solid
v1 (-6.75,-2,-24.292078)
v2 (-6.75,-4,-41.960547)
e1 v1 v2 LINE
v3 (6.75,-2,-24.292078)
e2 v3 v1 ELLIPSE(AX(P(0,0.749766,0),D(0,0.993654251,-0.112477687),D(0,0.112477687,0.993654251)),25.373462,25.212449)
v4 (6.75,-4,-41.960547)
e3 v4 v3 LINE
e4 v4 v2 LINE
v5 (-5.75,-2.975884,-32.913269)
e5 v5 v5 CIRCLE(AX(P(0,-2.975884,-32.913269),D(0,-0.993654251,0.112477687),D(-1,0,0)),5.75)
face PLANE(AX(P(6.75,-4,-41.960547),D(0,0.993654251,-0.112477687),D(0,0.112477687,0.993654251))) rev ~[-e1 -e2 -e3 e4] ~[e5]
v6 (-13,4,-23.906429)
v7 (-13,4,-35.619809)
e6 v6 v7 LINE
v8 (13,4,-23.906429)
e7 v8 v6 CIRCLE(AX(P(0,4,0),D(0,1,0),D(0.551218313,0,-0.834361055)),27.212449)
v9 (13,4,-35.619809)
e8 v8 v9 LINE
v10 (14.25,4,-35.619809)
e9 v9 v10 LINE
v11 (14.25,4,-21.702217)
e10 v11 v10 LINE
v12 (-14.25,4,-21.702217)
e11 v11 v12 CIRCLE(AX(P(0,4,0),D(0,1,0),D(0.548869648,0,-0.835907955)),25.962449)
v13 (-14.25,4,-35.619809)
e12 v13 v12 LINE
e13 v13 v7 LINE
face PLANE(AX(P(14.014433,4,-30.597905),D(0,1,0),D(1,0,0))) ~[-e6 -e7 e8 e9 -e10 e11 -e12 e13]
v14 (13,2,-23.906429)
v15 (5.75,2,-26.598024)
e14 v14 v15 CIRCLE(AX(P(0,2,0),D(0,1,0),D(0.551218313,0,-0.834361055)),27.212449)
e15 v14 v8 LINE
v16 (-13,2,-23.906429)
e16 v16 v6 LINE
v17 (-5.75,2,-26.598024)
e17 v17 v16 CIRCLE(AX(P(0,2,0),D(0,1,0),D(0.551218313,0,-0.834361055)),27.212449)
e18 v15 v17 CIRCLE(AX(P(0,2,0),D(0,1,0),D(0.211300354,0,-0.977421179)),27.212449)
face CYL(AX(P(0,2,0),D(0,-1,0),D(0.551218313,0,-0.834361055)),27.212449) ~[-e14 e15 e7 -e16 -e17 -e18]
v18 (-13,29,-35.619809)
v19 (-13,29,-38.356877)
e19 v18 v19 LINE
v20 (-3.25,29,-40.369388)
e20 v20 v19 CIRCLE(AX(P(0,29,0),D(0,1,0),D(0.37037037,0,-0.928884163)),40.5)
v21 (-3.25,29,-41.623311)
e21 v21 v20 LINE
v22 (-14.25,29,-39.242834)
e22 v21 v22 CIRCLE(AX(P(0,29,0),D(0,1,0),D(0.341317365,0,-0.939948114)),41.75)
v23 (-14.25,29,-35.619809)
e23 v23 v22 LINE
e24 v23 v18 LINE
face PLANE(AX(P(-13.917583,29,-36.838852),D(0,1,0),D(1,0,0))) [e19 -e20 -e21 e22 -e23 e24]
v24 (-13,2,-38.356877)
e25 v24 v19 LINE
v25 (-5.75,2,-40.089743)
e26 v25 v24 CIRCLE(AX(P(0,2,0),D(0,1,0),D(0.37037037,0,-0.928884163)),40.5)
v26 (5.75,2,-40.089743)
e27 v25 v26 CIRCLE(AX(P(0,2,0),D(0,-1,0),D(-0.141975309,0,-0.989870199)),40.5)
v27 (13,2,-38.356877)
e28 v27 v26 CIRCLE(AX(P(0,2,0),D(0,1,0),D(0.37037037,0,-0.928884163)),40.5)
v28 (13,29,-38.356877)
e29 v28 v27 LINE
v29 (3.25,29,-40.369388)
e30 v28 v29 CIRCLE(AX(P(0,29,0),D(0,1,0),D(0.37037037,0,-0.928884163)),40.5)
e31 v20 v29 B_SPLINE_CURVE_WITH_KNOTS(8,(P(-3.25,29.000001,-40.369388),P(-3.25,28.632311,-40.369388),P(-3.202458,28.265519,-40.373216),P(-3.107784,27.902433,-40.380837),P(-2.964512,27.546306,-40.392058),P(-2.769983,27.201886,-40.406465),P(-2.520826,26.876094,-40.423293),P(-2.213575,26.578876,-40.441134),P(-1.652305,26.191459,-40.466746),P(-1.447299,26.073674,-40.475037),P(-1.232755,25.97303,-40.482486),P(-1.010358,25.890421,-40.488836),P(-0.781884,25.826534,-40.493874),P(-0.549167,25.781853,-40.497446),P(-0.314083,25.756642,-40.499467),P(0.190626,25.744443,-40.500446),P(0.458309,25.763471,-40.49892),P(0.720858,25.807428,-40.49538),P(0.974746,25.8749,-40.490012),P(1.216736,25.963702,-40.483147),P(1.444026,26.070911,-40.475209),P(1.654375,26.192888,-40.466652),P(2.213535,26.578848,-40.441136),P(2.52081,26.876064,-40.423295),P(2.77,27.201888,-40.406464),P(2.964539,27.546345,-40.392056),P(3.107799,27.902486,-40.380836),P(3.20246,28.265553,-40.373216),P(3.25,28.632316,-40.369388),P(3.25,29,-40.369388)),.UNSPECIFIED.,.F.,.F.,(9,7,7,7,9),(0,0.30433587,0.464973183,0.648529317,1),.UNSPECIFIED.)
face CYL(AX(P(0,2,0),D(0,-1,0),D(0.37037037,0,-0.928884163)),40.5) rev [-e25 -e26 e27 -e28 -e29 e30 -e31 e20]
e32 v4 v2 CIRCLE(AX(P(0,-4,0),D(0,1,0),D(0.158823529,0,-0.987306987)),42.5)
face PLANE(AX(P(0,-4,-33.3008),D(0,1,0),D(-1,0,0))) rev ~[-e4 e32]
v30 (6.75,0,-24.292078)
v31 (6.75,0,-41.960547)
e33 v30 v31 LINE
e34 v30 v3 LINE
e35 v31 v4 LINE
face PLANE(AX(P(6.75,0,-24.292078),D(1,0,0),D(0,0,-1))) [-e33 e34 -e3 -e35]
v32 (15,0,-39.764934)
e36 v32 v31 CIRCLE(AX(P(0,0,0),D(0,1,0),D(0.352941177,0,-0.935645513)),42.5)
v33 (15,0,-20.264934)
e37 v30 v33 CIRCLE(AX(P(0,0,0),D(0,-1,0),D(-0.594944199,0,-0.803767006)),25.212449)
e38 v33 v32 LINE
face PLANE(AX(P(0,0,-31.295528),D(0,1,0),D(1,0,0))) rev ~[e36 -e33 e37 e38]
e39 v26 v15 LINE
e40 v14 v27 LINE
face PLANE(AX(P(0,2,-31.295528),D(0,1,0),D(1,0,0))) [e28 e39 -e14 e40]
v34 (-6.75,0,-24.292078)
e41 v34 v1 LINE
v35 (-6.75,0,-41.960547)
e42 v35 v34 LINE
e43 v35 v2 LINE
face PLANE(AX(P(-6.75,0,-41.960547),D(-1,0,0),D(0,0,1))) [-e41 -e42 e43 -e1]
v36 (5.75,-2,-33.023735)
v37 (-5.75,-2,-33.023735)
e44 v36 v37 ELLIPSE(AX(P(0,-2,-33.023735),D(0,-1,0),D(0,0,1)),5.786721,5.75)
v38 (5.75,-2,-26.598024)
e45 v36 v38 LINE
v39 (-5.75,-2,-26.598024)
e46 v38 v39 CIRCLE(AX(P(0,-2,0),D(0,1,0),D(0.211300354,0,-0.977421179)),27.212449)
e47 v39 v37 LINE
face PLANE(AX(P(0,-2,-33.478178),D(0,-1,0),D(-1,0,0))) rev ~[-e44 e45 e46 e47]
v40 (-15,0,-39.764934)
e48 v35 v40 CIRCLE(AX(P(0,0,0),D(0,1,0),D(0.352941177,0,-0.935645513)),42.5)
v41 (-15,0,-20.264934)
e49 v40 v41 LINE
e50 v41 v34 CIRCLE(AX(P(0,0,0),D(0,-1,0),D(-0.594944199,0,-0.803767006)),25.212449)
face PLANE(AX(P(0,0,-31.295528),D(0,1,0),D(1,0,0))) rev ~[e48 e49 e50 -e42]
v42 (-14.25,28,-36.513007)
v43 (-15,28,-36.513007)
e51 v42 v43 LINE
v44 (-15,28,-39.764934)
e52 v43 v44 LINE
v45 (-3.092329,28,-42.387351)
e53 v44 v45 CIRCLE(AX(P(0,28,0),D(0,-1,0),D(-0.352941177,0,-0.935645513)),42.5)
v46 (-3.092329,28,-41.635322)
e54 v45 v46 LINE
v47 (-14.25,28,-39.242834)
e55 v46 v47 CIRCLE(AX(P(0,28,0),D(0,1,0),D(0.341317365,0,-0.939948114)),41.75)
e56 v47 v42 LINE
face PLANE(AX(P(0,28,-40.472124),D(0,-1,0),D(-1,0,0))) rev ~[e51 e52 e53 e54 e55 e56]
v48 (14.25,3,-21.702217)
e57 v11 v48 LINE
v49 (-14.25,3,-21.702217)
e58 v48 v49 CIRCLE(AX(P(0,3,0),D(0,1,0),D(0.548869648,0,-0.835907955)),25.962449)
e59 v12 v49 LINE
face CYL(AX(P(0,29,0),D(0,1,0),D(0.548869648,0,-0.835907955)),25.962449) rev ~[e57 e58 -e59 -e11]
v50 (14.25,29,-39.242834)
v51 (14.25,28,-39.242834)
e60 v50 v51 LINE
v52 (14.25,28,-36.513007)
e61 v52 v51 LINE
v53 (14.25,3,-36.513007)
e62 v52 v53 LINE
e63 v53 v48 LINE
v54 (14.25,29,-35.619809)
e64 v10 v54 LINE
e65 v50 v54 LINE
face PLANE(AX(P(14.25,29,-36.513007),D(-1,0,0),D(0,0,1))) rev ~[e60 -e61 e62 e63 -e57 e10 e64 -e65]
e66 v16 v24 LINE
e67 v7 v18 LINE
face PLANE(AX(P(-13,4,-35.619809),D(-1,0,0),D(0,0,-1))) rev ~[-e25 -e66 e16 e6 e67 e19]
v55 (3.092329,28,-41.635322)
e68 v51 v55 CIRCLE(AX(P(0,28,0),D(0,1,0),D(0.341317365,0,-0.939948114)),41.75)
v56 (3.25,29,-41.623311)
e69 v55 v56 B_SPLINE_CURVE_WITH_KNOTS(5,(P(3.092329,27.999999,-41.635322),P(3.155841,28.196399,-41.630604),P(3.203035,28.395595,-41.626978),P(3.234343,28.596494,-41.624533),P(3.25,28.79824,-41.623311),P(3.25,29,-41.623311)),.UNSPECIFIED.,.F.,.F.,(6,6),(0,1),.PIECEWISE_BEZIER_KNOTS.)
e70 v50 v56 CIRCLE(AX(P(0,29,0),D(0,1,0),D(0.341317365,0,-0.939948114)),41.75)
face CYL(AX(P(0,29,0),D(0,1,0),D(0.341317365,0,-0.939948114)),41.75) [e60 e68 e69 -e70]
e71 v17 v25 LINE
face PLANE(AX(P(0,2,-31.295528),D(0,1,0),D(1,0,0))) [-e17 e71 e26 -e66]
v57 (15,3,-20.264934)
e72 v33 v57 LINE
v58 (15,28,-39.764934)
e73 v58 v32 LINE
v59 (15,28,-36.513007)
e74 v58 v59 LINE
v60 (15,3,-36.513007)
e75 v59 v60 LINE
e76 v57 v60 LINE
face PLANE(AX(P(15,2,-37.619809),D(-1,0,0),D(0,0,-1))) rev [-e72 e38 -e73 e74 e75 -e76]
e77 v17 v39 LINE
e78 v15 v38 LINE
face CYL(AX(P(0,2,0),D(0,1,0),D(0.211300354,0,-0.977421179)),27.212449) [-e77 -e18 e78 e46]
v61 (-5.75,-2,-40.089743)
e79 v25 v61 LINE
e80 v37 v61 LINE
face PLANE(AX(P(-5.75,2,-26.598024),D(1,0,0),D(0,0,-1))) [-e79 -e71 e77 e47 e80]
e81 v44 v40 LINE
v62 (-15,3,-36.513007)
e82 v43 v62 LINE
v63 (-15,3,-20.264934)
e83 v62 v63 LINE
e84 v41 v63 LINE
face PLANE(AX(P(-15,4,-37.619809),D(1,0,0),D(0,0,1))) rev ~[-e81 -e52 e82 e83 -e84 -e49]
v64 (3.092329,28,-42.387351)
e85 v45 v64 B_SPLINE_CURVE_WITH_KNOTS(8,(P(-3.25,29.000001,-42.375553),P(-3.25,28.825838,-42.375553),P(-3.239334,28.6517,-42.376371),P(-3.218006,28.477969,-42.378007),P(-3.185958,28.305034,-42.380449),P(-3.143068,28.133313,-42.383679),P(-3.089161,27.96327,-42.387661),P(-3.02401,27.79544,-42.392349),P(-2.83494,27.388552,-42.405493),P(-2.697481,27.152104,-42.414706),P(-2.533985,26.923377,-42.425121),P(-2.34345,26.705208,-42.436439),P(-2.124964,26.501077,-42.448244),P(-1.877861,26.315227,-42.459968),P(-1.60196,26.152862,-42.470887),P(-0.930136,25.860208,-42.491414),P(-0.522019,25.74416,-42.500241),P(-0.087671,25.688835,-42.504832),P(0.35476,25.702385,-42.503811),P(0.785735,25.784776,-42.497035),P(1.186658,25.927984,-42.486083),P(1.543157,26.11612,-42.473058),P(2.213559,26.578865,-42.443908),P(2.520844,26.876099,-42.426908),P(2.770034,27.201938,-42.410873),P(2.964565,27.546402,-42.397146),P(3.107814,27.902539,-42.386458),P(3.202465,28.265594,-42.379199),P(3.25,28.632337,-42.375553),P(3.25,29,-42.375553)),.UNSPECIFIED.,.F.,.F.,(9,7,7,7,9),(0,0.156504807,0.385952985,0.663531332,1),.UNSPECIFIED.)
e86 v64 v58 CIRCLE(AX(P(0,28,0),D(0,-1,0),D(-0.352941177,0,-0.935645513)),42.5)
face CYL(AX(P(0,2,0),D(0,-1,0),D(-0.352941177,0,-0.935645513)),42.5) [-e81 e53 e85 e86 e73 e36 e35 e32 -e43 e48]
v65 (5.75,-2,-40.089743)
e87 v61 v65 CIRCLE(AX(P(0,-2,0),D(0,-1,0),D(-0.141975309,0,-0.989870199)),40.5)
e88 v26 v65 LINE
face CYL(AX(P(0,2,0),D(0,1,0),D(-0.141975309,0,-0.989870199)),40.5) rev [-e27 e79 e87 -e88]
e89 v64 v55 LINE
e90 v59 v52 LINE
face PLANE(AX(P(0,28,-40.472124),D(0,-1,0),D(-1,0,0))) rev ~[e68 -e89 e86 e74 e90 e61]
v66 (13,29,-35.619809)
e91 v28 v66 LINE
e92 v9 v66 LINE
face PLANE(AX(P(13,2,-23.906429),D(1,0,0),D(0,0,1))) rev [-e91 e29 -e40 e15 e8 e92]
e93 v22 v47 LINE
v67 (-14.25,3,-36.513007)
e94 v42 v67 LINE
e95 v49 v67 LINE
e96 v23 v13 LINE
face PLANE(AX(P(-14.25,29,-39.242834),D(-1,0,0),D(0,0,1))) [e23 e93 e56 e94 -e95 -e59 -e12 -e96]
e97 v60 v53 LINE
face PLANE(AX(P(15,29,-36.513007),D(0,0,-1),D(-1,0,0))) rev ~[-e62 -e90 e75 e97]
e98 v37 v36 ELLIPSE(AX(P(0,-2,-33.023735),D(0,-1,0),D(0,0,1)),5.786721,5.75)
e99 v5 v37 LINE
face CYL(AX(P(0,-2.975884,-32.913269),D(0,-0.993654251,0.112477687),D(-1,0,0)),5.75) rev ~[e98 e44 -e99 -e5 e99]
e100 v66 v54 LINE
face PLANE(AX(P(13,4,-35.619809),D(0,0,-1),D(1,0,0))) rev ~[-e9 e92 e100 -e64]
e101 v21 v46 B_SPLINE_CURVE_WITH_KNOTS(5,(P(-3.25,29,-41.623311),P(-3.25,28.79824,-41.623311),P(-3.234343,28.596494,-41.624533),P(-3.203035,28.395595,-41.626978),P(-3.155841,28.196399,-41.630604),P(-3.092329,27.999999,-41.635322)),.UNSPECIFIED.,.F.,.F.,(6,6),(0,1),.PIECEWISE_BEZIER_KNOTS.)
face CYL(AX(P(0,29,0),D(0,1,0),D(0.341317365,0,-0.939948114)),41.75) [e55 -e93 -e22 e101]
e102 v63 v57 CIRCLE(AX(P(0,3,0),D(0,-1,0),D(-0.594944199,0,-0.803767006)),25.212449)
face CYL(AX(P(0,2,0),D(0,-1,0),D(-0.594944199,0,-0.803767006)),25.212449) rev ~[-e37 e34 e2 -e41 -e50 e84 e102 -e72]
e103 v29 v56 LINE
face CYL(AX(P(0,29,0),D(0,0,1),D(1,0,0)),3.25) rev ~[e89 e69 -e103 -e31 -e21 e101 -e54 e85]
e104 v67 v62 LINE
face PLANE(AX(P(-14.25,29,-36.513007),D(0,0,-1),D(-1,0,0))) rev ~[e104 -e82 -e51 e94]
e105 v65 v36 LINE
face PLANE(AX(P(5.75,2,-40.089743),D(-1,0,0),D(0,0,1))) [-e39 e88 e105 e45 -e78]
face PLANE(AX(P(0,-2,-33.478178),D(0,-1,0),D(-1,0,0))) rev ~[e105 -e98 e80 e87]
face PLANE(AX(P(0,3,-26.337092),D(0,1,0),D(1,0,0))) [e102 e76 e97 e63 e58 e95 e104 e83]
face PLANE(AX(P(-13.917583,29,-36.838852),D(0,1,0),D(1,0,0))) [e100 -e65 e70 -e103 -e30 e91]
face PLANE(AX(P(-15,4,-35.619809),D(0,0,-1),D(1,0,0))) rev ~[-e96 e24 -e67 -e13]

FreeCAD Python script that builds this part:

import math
import FreeCAD as App
import Part
import Sketcher

V = App.Vector

doc = App.newDocument("Part")
body = doc.addObject("PartDesign::Body", "Body")

# Sketch on XZ plane
sketch1 = body.newObject("Sketcher::SketchObject", "Sketch")
sketch1.AttachmentSupport = (doc.getObject("XZ_Plane"), [""])
sketch1.MapMode = "FlatFace"
sketch1.addGeometry(Part.LineSegment(V(-15, -40, 0), V(-15, -20, 0)), False)
sketch1.addGeometry(Part.ArcOfCircle(Part.Circle(V(0, 0, 0), V(0, 0, 1), 25), math.radians(-127), math.radians(-53)), False)
sketch1.addGeometry(Part.LineSegment(V(15, -20, 0), V(15, -40, 0)), False)
sketch1.addGeometry(Part.ArcOfCircle(Part.Circle(V(0, 0, 0), V(0, 0, 1), 42), math.radians(-111), math.radians(-69)), False)
sketch1.addConstraint(Sketcher.Constraint("Coincident", 0, 2, 1, 1))
sketch1.addConstraint(Sketcher.Constraint("Coincident", 1, 2, 2, 1))
sketch1.addConstraint(Sketcher.Constraint("Coincident", 2, 2, 3, 2))
sketch1.addConstraint(Sketcher.Constraint("Coincident", 3, 1, 0, 1))
sketch1.addConstraint(Sketcher.Constraint("Vertical", 0))
sketch1.addConstraint(Sketcher.Constraint("Vertical", 2))
sketch1.addConstraint(Sketcher.Constraint("Coincident", 1, 3, -1, 1))
sketch1.addConstraint(Sketcher.Constraint("Coincident", 3, 3, -1, 1))
sketch1.addConstraint(Sketcher.Constraint("Horizontal", 0, 2, 1, 2))
sketch1.addConstraint(Sketcher.Constraint("Radius", 3, 42.5))
sketch1.addConstraint(Sketcher.Constraint("DistanceY", 0, 1, 0, 2, 19.5))
sketch1.addConstraint(Sketcher.Constraint("DistanceX", 0, 2, -1, 1, 15.0))
pad1 = body.newObject("PartDesign::Pad", "Pad")
pad1.Profile = sketch1
pad1.Length = 2
pad1.Reversed = True

# Sketch on XZ plane
sketch2 = body.newObject("Sketcher::SketchObject", "Sketch001")
sketch2.AttachmentSupport = (doc.getObject("XZ_Plane"), [""])
sketch2.MapMode = "FlatFace"
sketch2.addGeometry(Part.LineSegment(V(7, -42, 0), V(7, -24, 0)), False)
sketch2.addGeometry(Part.ArcOfCircle(Part.Circle(V(0, 0, 0), V(0, 0, 1), 25), math.radians(-106), math.radians(-74)), False)
sketch2.addGeometry(Part.LineSegment(V(-7, -24, 0), V(-7, -42, 0)), False)
sketch2.addGeometry(Part.ArcOfCircle(Part.Circle(V(0, 0, 0), V(0, 0, 1), 43), math.radians(-99.14), math.radians(-80.86)), False)
sketch2.addConstraint(Sketcher.Constraint("Coincident", 0, 2, 1, 2))
sketch2.addConstraint(Sketcher.Constraint("Coincident", 1, 1, 2, 1))
sketch2.addConstraint(Sketcher.Constraint("Coincident", 2, 2, 3, 1))
sketch2.addConstraint(Sketcher.Constraint("Coincident", 3, 2, 0, 1))
sketch2.addConstraint(Sketcher.Constraint("Vertical", 0))
sketch2.addConstraint(Sketcher.Constraint("Vertical", 2))
sketch2.addConstraint(Sketcher.Constraint("Coincident", 1, 3, -1, 1))
sketch2.addConstraint(Sketcher.Constraint("Coincident", 3, 3, -1, 1))
sketch2.addConstraint(Sketcher.Constraint("Horizontal", 0, 2, 1, 1))
sketch2.addConstraint(Sketcher.Constraint("Radius", 3, 42.5))
sketch2.addConstraint(Sketcher.Constraint("DistanceX", 1, 1, 0, 2, 13.5))
sketch2.addConstraint(Sketcher.Constraint("Radius", 1, 25.212449))
pad2 = body.newObject("PartDesign::Pad", "Pad001")
pad2.Profile = sketch2
pad2.Length = 4

# Sketch on YZ plane
sketch3 = body.newObject("Sketcher::SketchObject", "Sketch002")
sketch3.AttachmentSupport = (doc.getObject("YZ_Plane"), [""])
sketch3.MapMode = "FlatFace"
sketch3.AttachmentOffset = App.Placement(V(0, 0, 6.75), App.Rotation())
sketch3.addGeometry(Part.LineSegment(V(-4, -42, 0), V(-2, -24.3, 0)), False)
sketch3.addGeometry(Part.LineSegment(V(-2, -24.3, 0), V(-4, -24.3, 0)), False)
sketch3.addGeometry(Part.LineSegment(V(-4, -24.3, 0), V(-4, -42, 0)), False)
sketch3.addConstraint(Sketcher.Constraint("Coincident", 0, 2, 1, 1))
sketch3.addConstraint(Sketcher.Constraint("Coincident", 1, 2, 2, 1))
sketch3.addConstraint(Sketcher.Constraint("Coincident", 2, 2, 0, 1))
sketch3.addConstraint(Sketcher.Constraint("Horizontal", 1))
sketch3.addConstraint(Sketcher.Constraint("Vertical", 2))
sketch3.addConstraint(Sketcher.Constraint("DistanceX", 1, 2, 1, 1, 2.0))
sketch3.addConstraint(Sketcher.Constraint("DistanceX", 0, 2, -1, 1, 2.0))
sketch3.addConstraint(Sketcher.Constraint("DistanceY", 2, 2, 2, 1, 17.668469))
sketch3.addConstraint(Sketcher.Constraint("DistanceY", 0, 2, -1, 1, 24.292078))
pocket1 = body.newObject("PartDesign::Pocket", "Pocket")
pocket1.Profile = sketch3
pocket1.Type = "ThroughAll"

# Sketch on an angled plane
sketch4 = body.newObject("Sketcher::SketchObject", "Sketch003")
sketch4.Placement = App.Placement(V(0, 0.740281, -0.083797), App.Rotation(V(-1, 0, 0), V(0, -0.112477687, -0.993654251), V(0, -0.993654251, 0.112477687), "ZXY"))
sketch4.addGeometry(Part.Circle(V(0, 33, 0), V(0, 0, 1), 6), False)
sketch4.addConstraint(Sketcher.Constraint("PointOnObject", 0, 3, -2))
sketch4.addConstraint(Sketcher.Constraint("Diameter", 0, 11.5))
sketch4.addConstraint(Sketcher.Constraint("DistanceY", -1, 1, 0, 3, 33.03913))
pocket2 = body.newObject("PartDesign::Pocket", "Pocket001")
pocket2.Profile = sketch4
pocket2.Length = 2

# Sketch on XZ plane
sketch5 = body.newObject("Sketcher::SketchObject", "Sketch004")
sketch5.AttachmentSupport = (doc.getObject("XZ_Plane"), [""])
sketch5.MapMode = "FlatFace"
sketch5.AttachmentOffset = App.Placement(V(0, 0, -2), App.Rotation())
sketch5.addGeometry(Part.ArcOfCircle(Part.Circle(V(0, 0, 0), V(0, 0, 1), 40), math.radians(-98.16), math.radians(-81.84)), False)
sketch5.addGeometry(Part.LineSegment(V(-6, -40, 0), V(-6, -27, 0)), False)
sketch5.addGeometry(Part.ArcOfCircle(Part.Circle(V(0, 0, 0), V(0, 0, 1), 27), math.radians(-102), math.radians(-78)), False)
sketch5.addGeometry(Part.LineSegment(V(6, -27, 0), V(6, -40, 0)), False)
sketch5.addConstraint(Sketcher.Constraint("Coincident", 0, 1, 1, 1))
sketch5.addConstraint(Sketcher.Constraint("Coincident", 1, 2, 2, 1))
sketch5.addConstraint(Sketcher.Constraint("Coincident", 2, 2, 3, 1))
sketch5.addConstraint(Sketcher.Constraint("Coincident", 3, 2, 0, 2))
sketch5.addConstraint(Sketcher.Constraint("Vertical", 1))
sketch5.addConstraint(Sketcher.Constraint("Vertical", 3))
sketch5.addConstraint(Sketcher.Constraint("Coincident", 0, 3, -1, 1))
sketch5.addConstraint(Sketcher.Constraint("Coincident", 2, 3, -1, 1))
sketch5.addConstraint(Sketcher.Constraint("Horizontal", 1, 2, 2, 2))
sketch5.addConstraint(Sketcher.Constraint("Radius", 0, 40.5))
sketch5.addConstraint(Sketcher.Constraint("DistanceX", 1, 2, 2, 2, 11.5))
sketch5.addConstraint(Sketcher.Constraint("Radius", 2, 27.212449))
pocket3 = body.newObject("PartDesign::Pocket", "Pocket002")
pocket3.Profile = sketch5
pocket3.Length = 4
pocket3.Reversed = True

# Sketch on XZ plane
sketch6 = body.newObject("Sketcher::SketchObject", "Sketch005")
sketch6.AttachmentSupport = (doc.getObject("XZ_Plane"), [""])
sketch6.MapMode = "FlatFace"
sketch6.AttachmentOffset = App.Placement(V(0, 0, -2), App.Rotation())
sketch6.addGeometry(Part.LineSegment(V(-15, -39.8, 0), V(-15, -37.6, 0)), False)
sketch6.addGeometry(Part.ArcOfCircle(Part.Circle(V(0, 0, 0), V(0, 0, 1), 40.5), math.radians(-112), math.radians(-68)), False)
sketch6.addGeometry(Part.LineSegment(V(15, -37.6, 0), V(15, -39.8, 0)), False)
sketch6.addGeometry(Part.ArcOfCircle(Part.Circle(V(0, 0, 0), V(0, 0, 1), 42.5), math.radians(-111), math.radians(-69)), False)
sketch6.addConstraint(Sketcher.Constraint("Coincident", 0, 2, 1, 1))
sketch6.addConstraint(Sketcher.Constraint("Coincident", 1, 2, 2, 1))
sketch6.addConstraint(Sketcher.Constraint("Coincident", 2, 2, 3, 2))
sketch6.addConstraint(Sketcher.Constraint("Coincident", 3, 1, 0, 1))
sketch6.addConstraint(Sketcher.Constraint("Vertical", 0))
sketch6.addConstraint(Sketcher.Constraint("Vertical", 2))
sketch6.addConstraint(Sketcher.Constraint("Coincident", 1, 3, -1, 1))
sketch6.addConstraint(Sketcher.Constraint("Coincident", 3, 3, -1, 1))
sketch6.addConstraint(Sketcher.Constraint("Horizontal", 0, 2, 1, 2))
sketch6.addConstraint(Sketcher.Constraint("Radius", 1, 40.5))
sketch6.addConstraint(Sketcher.Constraint("Radius", 3, 42.5))
sketch6.addConstraint(Sketcher.Constraint("DistanceX", 0, 2, -1, 1, 15.0))
pad3 = body.newObject("PartDesign::Pad", "Pad002")
pad3.Profile = sketch6
pad3.Length = 27
pad3.Reversed = True

# Sketch on XZ plane
sketch7 = body.newObject("Sketcher::SketchObject", "Sketch006")
sketch7.AttachmentSupport = (doc.getObject("XZ_Plane"), [""])
sketch7.MapMode = "FlatFace"
sketch7.AttachmentOffset = App.Placement(V(0, 0, -2), App.Rotation())
sketch7.addGeometry(Part.LineSegment(V(-15, -22.7, 0), V(-15, -20.3, 0)), False)
sketch7.addGeometry(Part.ArcOfCircle(Part.Circle(V(0, 0, 0), V(0, 0, 1), 25.2), math.radians(-127), math.radians(-53)), False)
sketch7.addGeometry(Part.LineSegment(V(15, -20.3, 0), V(15, -22.7, 0)), False)
sketch7.addGeometry(Part.ArcOfCircle(Part.Circle(V(0, 0, 0), V(0, 0, 1), 27.2), math.radians(-123), math.radians(-57)), False)
sketch7.addConstraint(Sketcher.Constraint("Coincident", 0, 2, 1, 1))
sketch7.addConstraint(Sketcher.Constraint("Coincident", 1, 2, 2, 1))
sketch7.addConstraint(Sketcher.Constraint("Coincident", 2, 2, 3, 2))
sketch7.addConstraint(Sketcher.Constraint("Coincident", 3, 1, 0, 1))
sketch7.addConstraint(Sketcher.Constraint("Vertical", 0))
sketch7.addConstraint(Sketcher.Constraint("Vertical", 2))
sketch7.addConstraint(Sketcher.Constraint("Coincident", 1, 3, -1, 1))
sketch7.addConstraint(Sketcher.Constraint("Coincident", 3, 3, -1, 1))
sketch7.addConstraint(Sketcher.Constraint("Horizontal", 0, 2, 1, 2))
sketch7.addConstraint(Sketcher.Constraint("DistanceX", 0, 2, -1, 1, 15.0))
sketch7.addConstraint(Sketcher.Constraint("Radius", 1, 25.212449))
sketch7.addConstraint(Sketcher.Constraint("Radius", 3, 27.212449))
pad4 = body.newObject("PartDesign::Pad", "Pad003")
pad4.Profile = sketch7
pad4.Length = 2
pad4.Reversed = True

# Sketch on XZ plane
sketch8 = body.newObject("Sketcher::SketchObject", "Sketch007")
sketch8.AttachmentSupport = (doc.getObject("XZ_Plane"), [""])
sketch8.MapMode = "FlatFace"
sketch8.AttachmentOffset = App.Placement(V(0, 0, -2), App.Rotation())
sketch8.addGeometry(Part.LineSegment(V(-15, -37.6, 0), V(-15, -22.7, 0)), False)
sketch8.addGeometry(Part.ArcOfCircle(Part.Circle(V(0, 0, 0), V(0, 0, 1), 27.2), math.radians(-123.45), math.radians(-118.54)), False)
sketch8.addGeometry(Part.LineSegment(V(-13, -23.9, 0), V(-13, -38.4, 0)), False)
sketch8.addGeometry(Part.ArcOfCircle(Part.Circle(V(0, 0, 0), V(0, 0, 1), 40.5), math.radians(-111.74), math.radians(-108.72)), False)
sketch8.addConstraint(Sketcher.Constraint("Coincident", 0, 2, 1, 1))
sketch8.addConstraint(Sketcher.Constraint("Coincident", 1, 2, 2, 1))
sketch8.addConstraint(Sketcher.Constraint("Coincident", 2, 2, 3, 2))
sketch8.addConstraint(Sketcher.Constraint("Coincident", 3, 1, 0, 1))
sketch8.addConstraint(Sketcher.Constraint("Vertical", 0))
sketch8.addConstraint(Sketcher.Constraint("Vertical", 2))
sketch8.addConstraint(Sketcher.Constraint("Coincident", 1, 3, -1, 1))
sketch8.addConstraint(Sketcher.Constraint("Coincident", 3, 3, -1, 1))
sketch8.addConstraint(Sketcher.Constraint("Radius", 3, 40.5))
sketch8.addConstraint(Sketcher.Constraint("DistanceX", 0, 2, -1, 1, 15.0))
sketch8.addConstraint(Sketcher.Constraint("DistanceX", 1, 2, -1, 1, 13.0))
sketch8.addConstraint(Sketcher.Constraint("Radius", 1, 27.212448))
pad5 = body.newObject("PartDesign::Pad", "Pad004")
pad5.Profile = sketch8
pad5.Length = 2
pad5.Reversed = True
doc.recompute()

mirrored = body.newObject("PartDesign::Mirrored", "Mirrored")
mirrored.Originals = [pad5]
mirrored.MirrorPlane = (doc.getObject("YZ_Plane"), [""])
body.Tip = mirrored

# Sketch on XZ plane
sketch9 = body.newObject("Sketcher::SketchObject", "Sketch008")
sketch9.AttachmentSupport = (doc.getObject("XZ_Plane"), [""])
sketch9.MapMode = "FlatFace"
sketch9.AttachmentOffset = App.Placement(V(0, 0, -4), App.Rotation())
sketch9.addGeometry(Part.ArcOfCircle(Part.Circle(V(0, 0, 0), V(0, 0, 1), 40.5), math.radians(-111.74), math.radians(-108.72)), False)
sketch9.addGeometry(Part.LineSegment(V(-15, -37.6, 0), V(-15, -35.6, 0)), False)
sketch9.addGeometry(Part.LineSegment(V(-15, -35.6, 0), V(-13, -35.6, 0)), False)
sketch9.addGeometry(Part.LineSegment(V(-13, -35.6, 0), V(-13, -38.4, 0)), False)
sketch9.addGeometry(Part.LineSegment(V(15, -35.6, 0), V(15, -37.6, 0)), False)
sketch9.addGeometry(Part.ArcOfCircle(Part.Circle(V(0, 0, 0), V(0, 0, 1), 40.5), math.radians(-71.28), math.radians(-68.26)), False)
sketch9.addGeometry(Part.LineSegment(V(13, -38.4, 0), V(13, -35.6, 0)), False)
sketch9.addGeometry(Part.LineSegment(V(13, -35.6, 0), V(15, -35.6, 0)), False)
sketch9.addConstraint(Sketcher.Constraint("Coincident", 0, 1, 1, 1))
sketch9.addConstraint(Sketcher.Constraint("Coincident", 1, 2, 2, 1))
sketch9.addConstraint(Sketcher.Constraint("Coincident", 2, 2, 3, 1))
sketch9.addConstraint(Sketcher.Constraint("Coincident", 3, 2, 0, 2))
sketch9.addConstraint(Sketcher.Constraint("Coincident", 4, 2, 5, 2))
sketch9.addConstraint(Sketcher.Constraint("Coincident", 5, 1, 6, 1))
sketch9.addConstraint(Sketcher.Constraint("Coincident", 6, 2, 7, 1))
sketch9.addConstraint(Sketcher.Constraint("Coincident", 7, 2, 4, 1))
sketch9.addConstraint(Sketcher.Constraint("Vertical", 1))
sketch9.addConstraint(Sketcher.Constraint("Horizontal", 2))
sketch9.addConstraint(Sketcher.Constraint("Vertical", 3))
sketch9.addConstraint(Sketcher.Constraint("Vertical", 4))
sketch9.addConstraint(Sketcher.Constraint("Vertical", 6))
sketch9.addConstraint(Sketcher.Constraint("Horizontal", 7))
sketch9.addConstraint(Sketcher.Constraint("Coincident", 0, 3, -1, 1))
sketch9.addConstraint(Sketcher.Constraint("Coincident", 5, 3, -1, 1))
sketch9.addConstraint(Sketcher.Constraint("Equal", 0, 5))
sketch9.addConstraint(Sketcher.Constraint("Symmetric", 2, 2, 6, 2, -2))
sketch9.addConstraint(Sketcher.Constraint("Horizontal", 0, 1, 4, 2))
sketch9.addConstraint(Sketcher.Constraint("Equal", 7, 1))
sketch9.addConstraint(Sketcher.Constraint("Radius", 0, 40.5))
sketch9.addConstraint(Sketcher.Constraint("DistanceX", 2, 1, 2, 2, 2.0))
sketch9.addConstraint(Sketcher.Constraint("DistanceX", 0, 1, -1, 1, 15.0))
pad6 = body.newObject("PartDesign::Pad", "Pad005")
pad6.Profile = sketch9
pad6.Length = 25
pad6.Reversed = True

# Sketch on XZ plane
sketch10 = body.newObject("Sketcher::SketchObject", "Sketch009")
sketch10.AttachmentSupport = (doc.getObject("XZ_Plane"), [""])
sketch10.MapMode = "FlatFace"
sketch10.AttachmentOffset = App.Placement(V(0, 0, -29), App.Rotation())
sketch10.addGeometry(Part.LineSegment(V(-14.2, -21.7, 0), V(-14.2, -36.5, 0)), False)
sketch10.addGeometry(Part.LineSegment(V(-14.2, -36.5, 0), V(-15, -36.5, 0)), False)
sketch10.addGeometry(Part.LineSegment(V(-15, -36.5, 0), V(-15, -20.3, 0)), False)
sketch10.addGeometry(Part.ArcOfCircle(Part.Circle(V(0, 0, 0), V(0, 0, 1), 25.2), math.radians(-127), math.radians(-53)), False)
sketch10.addGeometry(Part.LineSegment(V(15, -20.3, 0), V(15, -36.5, 0)), False)
sketch10.addGeometry(Part.LineSegment(V(15, -36.5, 0), V(14.2, -36.5, 0)), False)
sketch10.addGeometry(Part.LineSegment(V(14.2, -36.5, 0), V(14.2, -21.7, 0)), False)
sketch10.addGeometry(Part.ArcOfCircle(Part.Circle(V(0, 0, 0), V(0, 0, 1), 26), math.radians(-123), math.radians(-57)), False)
sketch10.addConstraint(Sketcher.Constraint("Coincident", 0, 2, 1, 1))
sketch10.addConstraint(Sketcher.Constraint("Coincident", 1, 2, 2, 1))
sketch10.addConstraint(Sketcher.Constraint("Coincident", 2, 2, 3, 1))
sketch10.addConstraint(Sketcher.Constraint("Coincident", 3, 2, 4, 1))
sketch10.addConstraint(Sketcher.Constraint("Coincident", 4, 2, 5, 1))
sketch10.addConstraint(Sketcher.Constraint("Coincident", 5, 2, 6, 1))
sketch10.addConstraint(Sketcher.Constraint("Coincident", 6, 2, 7, 2))
sketch10.addConstraint(Sketcher.Constraint("Coincident", 7, 1, 0, 1))
sketch10.addConstraint(Sketcher.Constraint("Vertical", 0))
sketch10.addConstraint(Sketcher.Constraint("Horizontal", 1))
sketch10.addConstraint(Sketcher.Constraint("Vertical", 2))
sketch10.addConstraint(Sketcher.Constraint("Vertical", 4))
sketch10.addConstraint(Sketcher.Constraint("Horizontal", 5))
sketch10.addConstraint(Sketcher.Constraint("Vertical", 6))
sketch10.addConstraint(Sketcher.Constraint("Coincident", 3, 3, -1, 1))
sketch10.addConstraint(Sketcher.Constraint("Coincident", 7, 3, -1, 1))
sketch10.addConstraint(Sketcher.Constraint("Symmetric", 1, 2, 4, 2, -2))
sketch10.addConstraint(Sketcher.Constraint("Horizontal", 6, 2, 7, 1))
sketch10.addConstraint(Sketcher.Constraint("DistanceX", 1, 2, -1, 1, 15.0))
sketch10.addConstraint(Sketcher.Constraint("DistanceX", 1, 2, 1, 1, 0.75))
sketch10.addConstraint(Sketcher.Constraint("Radius", 3, 25.212449))
sketch10.addConstraint(Sketcher.Constraint("Radius", 7, 25.962449))
sketch10.addConstraint(Sketcher.Constraint("DistanceY", 0, 2, 0, 1, 14.81079))
pocket4 = body.newObject("PartDesign::Pocket", "Pocket003")
pocket4.Profile = sketch10
pocket4.Length = 26
pocket4.Reversed = True

# Sketch on XY plane
sketch11 = body.newObject("Sketcher::SketchObject", "Sketch010")
sketch11.AttachmentSupport = (doc.getObject("XY_Plane"), [""])
sketch11.MapMode = "FlatFace"
sketch11.addGeometry(Part.Circle(V(0, 29, 0), V(0, 0, 1), 3.2), False)
sketch11.addConstraint(Sketcher.Constraint("PointOnObject", 0, 3, -2))
sketch11.addConstraint(Sketcher.Constraint("Diameter", 0, 6.5))
sketch11.addConstraint(Sketcher.Constraint("DistanceY", -1, 1, 0, 3, 29.0))
pocket5 = body.newObject("PartDesign::Pocket", "Pocket004")
pocket5.Profile = sketch11
pocket5.Type = "ThroughAll"
pocket5.Midplane = True

# Sketch on XZ plane
sketch12 = body.newObject("Sketcher::SketchObject", "Sketch011")
sketch12.AttachmentSupport = (doc.getObject("XZ_Plane"), [""])
sketch12.MapMode = "FlatFace"
sketch12.AttachmentOffset = App.Placement(V(0, 0, -29), App.Rotation())
sketch12.addGeometry(Part.LineSegment(V(-15, -39.8, 0), V(-15, -36.5, 0)), False)
sketch12.addGeometry(Part.LineSegment(V(-15, -36.5, 0), V(-14.2, -36.5, 0)), False)
sketch12.addGeometry(Part.LineSegment(V(-14.2, -36.5, 0), V(-14.2, -39.2, 0)), False)
sketch12.addGeometry(Part.ArcOfCircle(Part.Circle(V(0, 0, 0), V(0, 0, 1), 41.8), math.radians(-110), math.radians(-70)), False)
sketch12.addGeometry(Part.LineSegment(V(14.2, -39.2, 0), V(14.2, -36.5, 0)), False)
sketch12.addGeometry(Part.LineSegment(V(14.2, -36.5, 0), V(15, -36.5, 0)), False)
sketch12.addGeometry(Part.LineSegment(V(15, -36.5, 0), V(15, -39.8, 0)), False)
sketch12.addGeometry(Part.ArcOfCircle(Part.Circle(V(0, 0, 0), V(0, 0, 1), 42.5), math.radians(-111), math.radians(-69)), False)
sketch12.addConstraint(Sketcher.Constraint("Coincident", 0, 2, 1, 1))
sketch12.addConstraint(Sketcher.Constraint("Coincident", 1, 2, 2, 1))
sketch12.addConstraint(Sketcher.Constraint("Coincident", 2, 2, 3, 1))
sketch12.addConstraint(Sketcher.Constraint("Coincident", 3, 2, 4, 1))
sketch12.addConstraint(Sketcher.Constraint("Coincident", 4, 2, 5, 1))
sketch12.addConstraint(Sketcher.Constraint("Coincident", 5, 2, 6, 1))
sketch12.addConstraint(Sketcher.Constraint("Coincident", 6, 2, 7, 2))
sketch12.addConstraint(Sketcher.Constraint("Coincident", 7, 1, 0, 1))
sketch12.addConstraint(Sketcher.Constraint("Vertical", 0))
sketch12.addConstraint(Sketcher.Constraint("Horizontal", 1))
sketch12.addConstraint(Sketcher.Constraint("Vertical", 2))
sketch12.addConstraint(Sketcher.Constraint("Vertical", 4))
sketch12.addConstraint(Sketcher.Constraint("Horizontal", 5))
sketch12.addConstraint(Sketcher.Constraint("Vertical", 6))
sketch12.addConstraint(Sketcher.Constraint("Coincident", 3, 3, -1, 1))
sketch12.addConstraint(Sketcher.Constraint("Coincident", 7, 3, -1, 1))
sketch12.addConstraint(Sketcher.Constraint("Symmetric", 1, 2, 4, 2, -2))
sketch12.addConstraint(Sketcher.Constraint("Horizontal", 6, 2, 7, 1))
sketch12.addConstraint(Sketcher.Constraint("Radius", 7, 42.5))
sketch12.addConstraint(Sketcher.Constraint("Radius", 3, 41.75))
sketch12.addConstraint(Sketcher.Constraint("DistanceX", 0, 2, -1, 1, 15.0))
sketch12.addConstraint(Sketcher.Constraint("DistanceX", 1, 1, 1, 2, 0.75))
sketch12.addConstraint(Sketcher.Constraint("DistanceY", 0, 1, 0, 2, 3.251927))
pocket6 = body.newObject("PartDesign::Pocket", "Pocket005")
pocket6.Profile = sketch12
pocket6.Length = 1
pocket6.Reversed = True

doc.recompute()
